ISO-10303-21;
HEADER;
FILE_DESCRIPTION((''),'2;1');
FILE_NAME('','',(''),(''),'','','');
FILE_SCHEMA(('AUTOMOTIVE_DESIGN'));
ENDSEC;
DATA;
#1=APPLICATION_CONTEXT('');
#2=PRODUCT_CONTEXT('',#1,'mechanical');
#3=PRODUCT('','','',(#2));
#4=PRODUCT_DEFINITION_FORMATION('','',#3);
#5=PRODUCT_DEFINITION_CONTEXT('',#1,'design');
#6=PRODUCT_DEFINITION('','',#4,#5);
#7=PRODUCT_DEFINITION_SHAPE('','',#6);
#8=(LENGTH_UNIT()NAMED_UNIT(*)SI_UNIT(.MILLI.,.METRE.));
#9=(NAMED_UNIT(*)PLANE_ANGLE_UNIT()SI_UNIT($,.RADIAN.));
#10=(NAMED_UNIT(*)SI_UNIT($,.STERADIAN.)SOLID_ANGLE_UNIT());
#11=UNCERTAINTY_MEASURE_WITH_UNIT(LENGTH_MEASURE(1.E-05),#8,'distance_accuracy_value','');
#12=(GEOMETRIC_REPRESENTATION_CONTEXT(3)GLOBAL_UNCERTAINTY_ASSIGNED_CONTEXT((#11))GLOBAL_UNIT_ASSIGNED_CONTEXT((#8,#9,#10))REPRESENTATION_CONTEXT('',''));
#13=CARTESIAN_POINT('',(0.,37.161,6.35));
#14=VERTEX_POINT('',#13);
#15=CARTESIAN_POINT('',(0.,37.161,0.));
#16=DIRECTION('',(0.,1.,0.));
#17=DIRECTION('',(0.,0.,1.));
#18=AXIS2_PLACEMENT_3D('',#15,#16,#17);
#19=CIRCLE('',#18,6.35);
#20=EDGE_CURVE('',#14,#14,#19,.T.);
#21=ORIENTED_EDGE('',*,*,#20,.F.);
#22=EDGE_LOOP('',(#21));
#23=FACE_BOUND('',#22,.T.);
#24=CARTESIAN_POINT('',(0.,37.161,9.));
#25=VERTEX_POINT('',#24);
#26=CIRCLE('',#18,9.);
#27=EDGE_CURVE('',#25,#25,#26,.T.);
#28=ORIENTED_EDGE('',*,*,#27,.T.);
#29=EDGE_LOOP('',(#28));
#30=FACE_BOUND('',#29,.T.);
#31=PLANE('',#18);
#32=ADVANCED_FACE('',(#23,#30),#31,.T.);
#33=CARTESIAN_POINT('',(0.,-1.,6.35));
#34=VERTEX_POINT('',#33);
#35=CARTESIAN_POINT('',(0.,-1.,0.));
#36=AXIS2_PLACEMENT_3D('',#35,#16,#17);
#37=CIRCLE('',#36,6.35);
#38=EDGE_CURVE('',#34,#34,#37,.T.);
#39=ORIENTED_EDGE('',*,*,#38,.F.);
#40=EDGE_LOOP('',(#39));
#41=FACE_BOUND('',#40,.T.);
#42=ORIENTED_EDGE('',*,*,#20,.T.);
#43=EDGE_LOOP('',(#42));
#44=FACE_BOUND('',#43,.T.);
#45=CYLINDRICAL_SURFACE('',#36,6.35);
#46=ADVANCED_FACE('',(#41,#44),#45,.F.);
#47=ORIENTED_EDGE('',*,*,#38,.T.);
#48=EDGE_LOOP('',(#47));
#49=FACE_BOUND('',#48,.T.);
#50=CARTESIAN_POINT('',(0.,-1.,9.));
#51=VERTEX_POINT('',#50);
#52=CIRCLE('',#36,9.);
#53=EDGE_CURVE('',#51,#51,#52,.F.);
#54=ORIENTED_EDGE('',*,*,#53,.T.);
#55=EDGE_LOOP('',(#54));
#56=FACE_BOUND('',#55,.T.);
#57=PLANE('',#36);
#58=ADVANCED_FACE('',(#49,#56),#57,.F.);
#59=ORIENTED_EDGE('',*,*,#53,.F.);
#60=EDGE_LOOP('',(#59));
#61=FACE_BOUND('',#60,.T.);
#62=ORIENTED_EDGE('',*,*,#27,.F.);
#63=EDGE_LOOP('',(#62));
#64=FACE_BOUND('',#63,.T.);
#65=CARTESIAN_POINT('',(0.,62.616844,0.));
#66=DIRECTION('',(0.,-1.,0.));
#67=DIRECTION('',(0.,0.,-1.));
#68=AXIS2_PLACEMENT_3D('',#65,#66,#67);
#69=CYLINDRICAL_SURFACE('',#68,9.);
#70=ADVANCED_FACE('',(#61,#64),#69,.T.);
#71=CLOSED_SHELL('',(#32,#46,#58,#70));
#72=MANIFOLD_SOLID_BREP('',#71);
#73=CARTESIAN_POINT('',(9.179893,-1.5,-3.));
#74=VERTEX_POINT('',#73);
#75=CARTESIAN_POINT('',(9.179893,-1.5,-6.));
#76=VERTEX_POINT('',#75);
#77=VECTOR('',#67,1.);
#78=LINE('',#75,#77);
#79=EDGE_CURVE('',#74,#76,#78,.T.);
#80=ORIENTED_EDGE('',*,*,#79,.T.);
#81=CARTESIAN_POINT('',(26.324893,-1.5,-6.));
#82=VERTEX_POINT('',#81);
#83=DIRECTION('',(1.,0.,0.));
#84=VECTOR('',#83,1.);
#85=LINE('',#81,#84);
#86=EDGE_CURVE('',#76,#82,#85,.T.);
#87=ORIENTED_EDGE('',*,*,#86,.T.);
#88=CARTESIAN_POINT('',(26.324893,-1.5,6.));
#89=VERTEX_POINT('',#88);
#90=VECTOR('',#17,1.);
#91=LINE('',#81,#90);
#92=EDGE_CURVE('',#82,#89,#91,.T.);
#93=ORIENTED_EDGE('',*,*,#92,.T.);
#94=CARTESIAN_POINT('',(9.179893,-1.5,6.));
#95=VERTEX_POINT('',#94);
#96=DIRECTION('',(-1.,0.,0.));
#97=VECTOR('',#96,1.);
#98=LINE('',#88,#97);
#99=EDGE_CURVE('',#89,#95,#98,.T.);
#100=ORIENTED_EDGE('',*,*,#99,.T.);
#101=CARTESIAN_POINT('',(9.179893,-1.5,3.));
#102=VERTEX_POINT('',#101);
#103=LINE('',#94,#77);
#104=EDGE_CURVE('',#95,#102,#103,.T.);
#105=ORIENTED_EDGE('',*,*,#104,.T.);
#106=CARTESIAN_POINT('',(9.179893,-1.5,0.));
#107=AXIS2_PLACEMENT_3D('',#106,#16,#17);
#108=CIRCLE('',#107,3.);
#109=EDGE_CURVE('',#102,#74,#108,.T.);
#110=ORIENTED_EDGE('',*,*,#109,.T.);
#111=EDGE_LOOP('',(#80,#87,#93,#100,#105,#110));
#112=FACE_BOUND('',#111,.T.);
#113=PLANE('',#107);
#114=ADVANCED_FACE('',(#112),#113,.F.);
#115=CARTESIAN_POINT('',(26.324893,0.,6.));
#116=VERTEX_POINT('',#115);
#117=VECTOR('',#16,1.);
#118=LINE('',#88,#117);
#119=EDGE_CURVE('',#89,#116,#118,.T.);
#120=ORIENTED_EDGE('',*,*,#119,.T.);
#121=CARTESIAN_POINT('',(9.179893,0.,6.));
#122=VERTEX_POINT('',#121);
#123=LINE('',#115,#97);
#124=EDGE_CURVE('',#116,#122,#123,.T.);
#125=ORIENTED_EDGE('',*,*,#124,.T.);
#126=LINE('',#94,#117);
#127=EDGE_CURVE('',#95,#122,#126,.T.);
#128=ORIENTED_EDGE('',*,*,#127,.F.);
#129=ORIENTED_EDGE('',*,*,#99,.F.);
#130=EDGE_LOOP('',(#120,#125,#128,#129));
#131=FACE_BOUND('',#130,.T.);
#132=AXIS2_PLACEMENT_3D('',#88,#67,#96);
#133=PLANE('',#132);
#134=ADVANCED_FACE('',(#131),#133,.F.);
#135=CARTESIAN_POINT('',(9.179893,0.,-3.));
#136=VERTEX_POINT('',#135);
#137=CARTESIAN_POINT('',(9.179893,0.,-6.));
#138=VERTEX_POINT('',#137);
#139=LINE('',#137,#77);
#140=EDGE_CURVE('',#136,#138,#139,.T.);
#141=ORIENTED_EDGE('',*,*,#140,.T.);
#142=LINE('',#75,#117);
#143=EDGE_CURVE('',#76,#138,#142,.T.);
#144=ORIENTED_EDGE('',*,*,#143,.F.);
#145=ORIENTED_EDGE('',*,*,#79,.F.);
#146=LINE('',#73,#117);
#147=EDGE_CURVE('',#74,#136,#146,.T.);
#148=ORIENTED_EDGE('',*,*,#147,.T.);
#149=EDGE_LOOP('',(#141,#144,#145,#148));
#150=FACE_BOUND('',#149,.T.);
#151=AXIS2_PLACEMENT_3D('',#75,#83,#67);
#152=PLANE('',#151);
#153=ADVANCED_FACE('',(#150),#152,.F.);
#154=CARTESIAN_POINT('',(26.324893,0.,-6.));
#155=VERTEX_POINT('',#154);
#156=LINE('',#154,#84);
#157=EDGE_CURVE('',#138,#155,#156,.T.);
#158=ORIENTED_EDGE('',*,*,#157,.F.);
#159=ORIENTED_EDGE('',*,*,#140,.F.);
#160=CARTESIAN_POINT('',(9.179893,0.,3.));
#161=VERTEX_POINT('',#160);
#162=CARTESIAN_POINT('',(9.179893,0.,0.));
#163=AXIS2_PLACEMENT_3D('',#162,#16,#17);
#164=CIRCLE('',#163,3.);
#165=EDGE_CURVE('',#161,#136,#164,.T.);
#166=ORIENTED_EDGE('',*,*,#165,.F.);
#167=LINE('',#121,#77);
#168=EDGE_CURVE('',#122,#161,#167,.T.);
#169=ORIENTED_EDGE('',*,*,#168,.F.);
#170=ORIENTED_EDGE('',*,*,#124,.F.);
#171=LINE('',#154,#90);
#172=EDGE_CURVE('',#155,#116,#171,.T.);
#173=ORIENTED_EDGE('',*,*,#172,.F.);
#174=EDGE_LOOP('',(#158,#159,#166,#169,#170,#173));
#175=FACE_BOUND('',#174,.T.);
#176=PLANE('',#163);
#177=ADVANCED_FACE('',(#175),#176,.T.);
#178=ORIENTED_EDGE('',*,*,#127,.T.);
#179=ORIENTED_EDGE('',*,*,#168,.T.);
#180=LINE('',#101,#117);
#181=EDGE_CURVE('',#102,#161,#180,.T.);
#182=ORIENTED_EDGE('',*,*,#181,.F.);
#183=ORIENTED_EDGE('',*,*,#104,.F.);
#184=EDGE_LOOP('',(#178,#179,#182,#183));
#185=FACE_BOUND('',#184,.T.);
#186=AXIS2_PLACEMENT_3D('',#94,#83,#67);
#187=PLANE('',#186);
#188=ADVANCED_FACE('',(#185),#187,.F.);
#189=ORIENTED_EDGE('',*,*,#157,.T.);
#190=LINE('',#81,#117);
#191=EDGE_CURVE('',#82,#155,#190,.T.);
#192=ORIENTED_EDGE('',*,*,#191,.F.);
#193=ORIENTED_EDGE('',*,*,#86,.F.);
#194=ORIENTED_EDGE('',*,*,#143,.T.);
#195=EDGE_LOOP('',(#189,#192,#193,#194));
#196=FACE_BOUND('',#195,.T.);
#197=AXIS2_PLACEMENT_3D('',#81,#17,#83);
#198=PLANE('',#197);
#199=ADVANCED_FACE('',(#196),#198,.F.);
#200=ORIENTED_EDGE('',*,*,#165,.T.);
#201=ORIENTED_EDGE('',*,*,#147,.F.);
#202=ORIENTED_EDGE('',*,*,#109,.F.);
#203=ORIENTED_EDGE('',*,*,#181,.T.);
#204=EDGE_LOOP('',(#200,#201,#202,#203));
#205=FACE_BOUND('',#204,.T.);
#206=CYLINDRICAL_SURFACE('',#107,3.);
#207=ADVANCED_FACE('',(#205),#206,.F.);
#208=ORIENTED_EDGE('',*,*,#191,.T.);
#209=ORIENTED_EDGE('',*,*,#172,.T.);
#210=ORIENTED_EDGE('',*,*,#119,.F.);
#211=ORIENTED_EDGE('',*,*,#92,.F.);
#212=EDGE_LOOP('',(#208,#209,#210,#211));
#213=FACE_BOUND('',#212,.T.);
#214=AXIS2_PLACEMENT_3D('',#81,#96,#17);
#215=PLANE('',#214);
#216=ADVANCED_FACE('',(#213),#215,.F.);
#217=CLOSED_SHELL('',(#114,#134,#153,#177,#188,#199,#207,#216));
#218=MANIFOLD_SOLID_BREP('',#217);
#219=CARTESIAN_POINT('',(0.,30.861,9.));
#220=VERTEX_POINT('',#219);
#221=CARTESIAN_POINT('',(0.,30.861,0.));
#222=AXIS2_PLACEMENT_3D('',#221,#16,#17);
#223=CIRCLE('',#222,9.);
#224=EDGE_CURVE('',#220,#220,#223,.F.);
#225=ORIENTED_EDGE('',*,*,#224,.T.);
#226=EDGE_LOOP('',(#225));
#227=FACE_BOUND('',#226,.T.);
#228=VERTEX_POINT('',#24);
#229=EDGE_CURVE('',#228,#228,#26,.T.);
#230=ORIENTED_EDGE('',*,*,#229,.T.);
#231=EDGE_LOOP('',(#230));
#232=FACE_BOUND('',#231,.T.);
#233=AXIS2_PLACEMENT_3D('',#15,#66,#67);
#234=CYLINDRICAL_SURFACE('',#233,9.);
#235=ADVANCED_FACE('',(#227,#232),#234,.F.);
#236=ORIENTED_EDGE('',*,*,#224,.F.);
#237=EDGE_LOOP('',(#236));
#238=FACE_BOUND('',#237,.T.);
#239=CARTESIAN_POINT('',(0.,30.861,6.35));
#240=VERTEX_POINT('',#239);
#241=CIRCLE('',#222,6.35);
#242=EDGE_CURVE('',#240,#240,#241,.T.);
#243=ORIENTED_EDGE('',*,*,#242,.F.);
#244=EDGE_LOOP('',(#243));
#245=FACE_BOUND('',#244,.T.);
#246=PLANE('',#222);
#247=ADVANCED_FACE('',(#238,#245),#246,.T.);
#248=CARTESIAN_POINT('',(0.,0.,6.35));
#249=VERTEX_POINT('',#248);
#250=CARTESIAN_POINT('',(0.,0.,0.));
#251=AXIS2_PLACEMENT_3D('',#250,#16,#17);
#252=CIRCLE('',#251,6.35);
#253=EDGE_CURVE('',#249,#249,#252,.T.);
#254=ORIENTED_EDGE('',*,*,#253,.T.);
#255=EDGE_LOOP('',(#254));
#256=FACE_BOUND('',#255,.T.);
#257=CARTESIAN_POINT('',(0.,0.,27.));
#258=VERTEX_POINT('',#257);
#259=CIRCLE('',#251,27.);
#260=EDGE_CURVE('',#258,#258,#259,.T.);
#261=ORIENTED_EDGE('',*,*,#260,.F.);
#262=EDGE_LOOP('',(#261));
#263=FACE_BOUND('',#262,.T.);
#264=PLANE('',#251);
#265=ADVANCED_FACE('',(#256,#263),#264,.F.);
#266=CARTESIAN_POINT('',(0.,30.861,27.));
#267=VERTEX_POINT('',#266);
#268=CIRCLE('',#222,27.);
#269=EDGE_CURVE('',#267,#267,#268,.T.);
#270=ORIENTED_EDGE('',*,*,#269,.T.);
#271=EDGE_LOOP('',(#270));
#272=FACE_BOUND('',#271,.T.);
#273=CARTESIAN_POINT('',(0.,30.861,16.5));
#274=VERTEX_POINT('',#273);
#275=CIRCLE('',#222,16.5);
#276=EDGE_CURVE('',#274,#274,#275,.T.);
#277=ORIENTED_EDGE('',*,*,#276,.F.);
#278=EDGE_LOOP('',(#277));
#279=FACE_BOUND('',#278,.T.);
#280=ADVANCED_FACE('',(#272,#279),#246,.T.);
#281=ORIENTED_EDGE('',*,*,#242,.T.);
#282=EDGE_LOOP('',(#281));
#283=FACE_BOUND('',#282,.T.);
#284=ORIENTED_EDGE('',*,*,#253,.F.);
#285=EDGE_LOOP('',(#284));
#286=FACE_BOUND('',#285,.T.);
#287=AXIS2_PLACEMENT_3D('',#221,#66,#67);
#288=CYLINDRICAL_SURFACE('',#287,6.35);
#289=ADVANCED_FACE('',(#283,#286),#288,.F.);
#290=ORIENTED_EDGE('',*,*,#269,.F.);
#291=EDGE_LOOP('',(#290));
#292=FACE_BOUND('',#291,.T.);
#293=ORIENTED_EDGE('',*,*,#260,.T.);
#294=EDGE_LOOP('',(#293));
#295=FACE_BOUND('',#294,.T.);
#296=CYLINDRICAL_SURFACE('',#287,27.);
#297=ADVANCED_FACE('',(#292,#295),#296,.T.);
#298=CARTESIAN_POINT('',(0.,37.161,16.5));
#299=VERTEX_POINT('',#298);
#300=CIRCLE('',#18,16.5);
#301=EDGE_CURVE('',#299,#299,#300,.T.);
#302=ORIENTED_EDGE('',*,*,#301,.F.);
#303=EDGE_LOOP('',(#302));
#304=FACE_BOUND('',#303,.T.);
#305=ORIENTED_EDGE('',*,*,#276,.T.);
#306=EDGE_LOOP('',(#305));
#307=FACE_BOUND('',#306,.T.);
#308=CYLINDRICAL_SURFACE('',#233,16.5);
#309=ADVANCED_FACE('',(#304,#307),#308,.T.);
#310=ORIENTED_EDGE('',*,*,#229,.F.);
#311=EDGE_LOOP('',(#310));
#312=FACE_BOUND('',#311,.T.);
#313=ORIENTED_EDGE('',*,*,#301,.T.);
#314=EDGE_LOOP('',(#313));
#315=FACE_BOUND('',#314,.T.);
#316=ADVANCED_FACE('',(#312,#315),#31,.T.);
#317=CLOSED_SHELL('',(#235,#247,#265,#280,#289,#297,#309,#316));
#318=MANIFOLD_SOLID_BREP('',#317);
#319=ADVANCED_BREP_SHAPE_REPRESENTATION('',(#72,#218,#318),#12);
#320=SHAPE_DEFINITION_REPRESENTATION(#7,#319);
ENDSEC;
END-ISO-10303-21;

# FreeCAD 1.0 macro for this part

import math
import FreeCAD as App
import Part
import Sketcher

V = App.Vector
Q = App.Units.Quantity

doc = App.newDocument("Part")
body = doc.addObject("PartDesign::Body", "Body")

# Sketch on XZ plane
sketch1 = body.newObject("Sketcher::SketchObject", "Sketch")
sketch1.AttachmentSupport = (doc.getObject("XZ_Plane"), [""])
sketch1.MapMode = "FlatFace"
sketch1.addGeometry([
    Part.Circle(V(0, 0, 0), V(0, 0, 1), 27),
    Part.Circle(V(0, 0, 0), V(0, 0, 1), 6),
], False)
sketch1.addConstraint([
    Sketcher.Constraint("Coincident", 0, 3, -1, 1),
    Sketcher.Constraint("Coincident", 1, 3, -1, 1),
    Sketcher.Constraint("Diameter", 0, Q("54 mm")),
    Sketcher.Constraint("Diameter", 1, Q("12.7 mm")),
])
pad1 = body.newObject("PartDesign::Pad", "Pad")
pad1.Profile = sketch1
pad1.Length = 30.861
pad1.Reversed = True

# Sketch on XZ plane
sketch2 = body.newObject("Sketcher::SketchObject", "Sketch001")
sketch2.AttachmentSupport = (doc.getObject("XZ_Plane"), [""])
sketch2.MapMode = "FlatFace"
sketch2.AttachmentOffset = App.Placement(V(0, 0, -30.861), App.Rotation())
sketch2.addGeometry([
    Part.Circle(V(0, 0, 0), V(0, 0, 1), 16),
    Part.Circle(V(0, 0, 0), V(0, 0, 1), 9),
], False)
sketch2.addConstraint([
    Sketcher.Constraint("Coincident", 0, 3, -1, 1),
    Sketcher.Constraint("Coincident", 1, 3, -1, 1),
    Sketcher.Constraint("Diameter", 0, Q("33 mm")),
    Sketcher.Constraint("Diameter", 1, Q("18 mm")),
])
pad2 = body.newObject("PartDesign::Pad", "Pad001")
pad2.Profile = sketch2
pad2.Length = 6.3
pad2.Reversed = True
body2 = doc.addObject("PartDesign::Body", "Body001")

# Sketch on XZ plane
sketch3 = body2.newObject("Sketcher::SketchObject", "Sketch002")
sketch3.AttachmentSupport = (doc.getObject("XZ_Plane001"), [""])
sketch3.MapMode = "FlatFace"
sketch3.AttachmentOffset = App.Placement(V(0, 0, -30.861), App.Rotation())
sketch3.addGeometry(Part.Circle(V(0, 0, 0), V(0, 0, 1), 9), False)
sketch3.addConstraint([
    Sketcher.Constraint("Coincident", 0, 3, -1, 1),
    Sketcher.Constraint("Diameter", 0, Q("18 mm")),
])
pad3 = body2.newObject("PartDesign::Pad", "Pad002")
pad3.Profile = sketch3
pad3.Type = "TwoLengths"
pad3.Length = 6.3
pad3.Length2 = 31.861
pad3.Reversed = True

# Sketch on XZ plane
sketch4 = body2.newObject("Sketcher::SketchObject", "Sketch003")
sketch4.AttachmentSupport = (doc.getObject("XZ_Plane001"), [""])
sketch4.MapMode = "FlatFace"
sketch4.AttachmentOffset = App.Placement(V(0, 0, -37.161), App.Rotation())
sketch4.addGeometry(Part.Circle(V(0, 0, 0), V(0, 0, 1), 6), False)
sketch4.addConstraint([
    Sketcher.Constraint("Coincident", 0, 3, -1, 1),
    Sketcher.Constraint("Diameter", 0, Q("12.7 mm")),
])
pocket1 = body2.newObject("PartDesign::Pocket", "Pocket")
pocket1.Profile = sketch4
pocket1.Type = "ThroughAll"
pocket1.Reversed = True
body3 = doc.addObject("PartDesign::Body", "Body002")

# Sketch on XZ plane
sketch5 = body3.newObject("Sketcher::SketchObject", "Sketch004")
sketch5.AttachmentSupport = (doc.getObject("XZ_Plane002"), [""])
sketch5.MapMode = "FlatFace"
sketch5.addGeometry([
    Part.LineSegment(V(26.3, -6, 0), V(26.3, 6, 0)),  # 0
    Part.LineSegment(V(26.3, 6, 0), V(9.2, 6, 0)),  # 1
    Part.LineSegment(V(9.2, 6, 0), V(9.2, 3, 0)),  # 2
    Part.ArcOfCircle(Part.Circle(V(9.2, 0, 0), V(0, 0, 1), 3), math.radians(-90), math.radians(90)),  # 3
    Part.LineSegment(V(9.2, -3, 0), V(9.2, -6, 0)),  # 4
    Part.LineSegment(V(9.2, -6, 0), V(26.3, -6, 0)),  # 5
], False)
sketch5.addConstraint([
    Sketcher.Constraint("Coincident", 0, 2, 1, 1),
    Sketcher.Constraint("Coincident", 1, 2, 2, 1),
    Sketcher.Constraint("Coincident", 2, 2, 3, 2),
    Sketcher.Constraint("Coincident", 3, 1, 4, 1),
    Sketcher.Constraint("Coincident", 4, 2, 5, 1),
    Sketcher.Constraint("Coincident", 5, 2, 0, 1),
    Sketcher.Constraint("Vertical", 0),
    Sketcher.Constraint("Horizontal", 1),
    Sketcher.Constraint("Vertical", 2),
    Sketcher.Constraint("Vertical", 4),
    Sketcher.Constraint("Horizontal", 5),
    Sketcher.Constraint("Symmetric", 2, 2, 3, 1, -1),
    Sketcher.Constraint("Vertical", 3, 3, 1, 2),
    Sketcher.Constraint("Equal", 2, 4),
    Sketcher.Constraint("Radius", 3, Q("3 mm")),
    Sketcher.Constraint("DistanceY", 0, 1, 0, 2, Q("12 mm")),
    Sketcher.Constraint("DistanceX", 1, 2, 1, 1, Q("17.145 mm")),
    Sketcher.Constraint("DistanceX", -1, 1, 3, 3, Q("9.179893 mm")),
])
pad4 = body3.newObject("PartDesign::Pad", "Pad003")
pad4.Profile = sketch5
pad4.Length = 1.5

doc.recompute()
